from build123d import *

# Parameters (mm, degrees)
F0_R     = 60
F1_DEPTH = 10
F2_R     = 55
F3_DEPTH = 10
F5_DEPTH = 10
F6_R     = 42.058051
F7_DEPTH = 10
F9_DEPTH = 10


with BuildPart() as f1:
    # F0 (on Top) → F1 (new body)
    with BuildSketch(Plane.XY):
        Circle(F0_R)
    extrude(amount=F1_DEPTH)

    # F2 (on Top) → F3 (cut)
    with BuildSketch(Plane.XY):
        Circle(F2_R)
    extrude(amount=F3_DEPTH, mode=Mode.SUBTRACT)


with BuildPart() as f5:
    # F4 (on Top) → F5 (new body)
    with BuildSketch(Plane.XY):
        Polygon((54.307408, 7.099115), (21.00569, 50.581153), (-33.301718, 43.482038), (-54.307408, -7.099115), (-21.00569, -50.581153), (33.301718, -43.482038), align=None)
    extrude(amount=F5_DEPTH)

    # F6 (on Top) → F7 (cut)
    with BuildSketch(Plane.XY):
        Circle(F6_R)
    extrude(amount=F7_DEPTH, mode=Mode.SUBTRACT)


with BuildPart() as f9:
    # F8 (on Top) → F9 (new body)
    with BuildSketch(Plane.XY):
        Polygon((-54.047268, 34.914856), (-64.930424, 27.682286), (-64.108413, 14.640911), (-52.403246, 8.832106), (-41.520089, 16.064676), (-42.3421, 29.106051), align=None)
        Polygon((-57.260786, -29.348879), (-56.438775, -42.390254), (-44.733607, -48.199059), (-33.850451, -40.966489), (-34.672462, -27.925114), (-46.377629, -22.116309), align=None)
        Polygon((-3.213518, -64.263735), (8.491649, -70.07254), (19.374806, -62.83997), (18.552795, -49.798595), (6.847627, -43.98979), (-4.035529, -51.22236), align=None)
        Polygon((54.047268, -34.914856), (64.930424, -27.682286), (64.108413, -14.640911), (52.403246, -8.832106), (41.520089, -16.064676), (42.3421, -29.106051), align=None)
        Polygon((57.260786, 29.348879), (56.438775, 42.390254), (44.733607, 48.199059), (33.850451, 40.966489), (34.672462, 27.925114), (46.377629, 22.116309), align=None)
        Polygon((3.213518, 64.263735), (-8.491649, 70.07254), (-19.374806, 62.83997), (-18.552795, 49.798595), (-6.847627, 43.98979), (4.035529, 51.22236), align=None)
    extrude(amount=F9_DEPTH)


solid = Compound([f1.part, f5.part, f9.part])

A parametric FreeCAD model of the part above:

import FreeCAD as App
import Part
import Sketcher
Q = App.Units.Quantity

doc = App.newDocument("Part")
body = doc.addObject("PartDesign::Body", "Body")

# Sketch on XY plane
sketch1 = body.newObject("Sketcher::SketchObject", "Sketch")
sketch1.AttachmentSupport = (doc.getObject("XY_Plane"), [""])
sketch1.MapMode = "FlatFace"
sketch1.addGeometry(Part.Circle(App.Vector(0, 0, 0), App.Vector(0, 0, 1), 60), False)
sketch1.addConstraint([
    Sketcher.Constraint("Coincident", 0, 3, -1, 1),
    Sketcher.Constraint("Diameter", 0, Q("120 mm")),
])
pad1 = body.newObject("PartDesign::Pad", "Pad")
pad1.Profile = sketch1
pad1.Length = 10

# Sketch on XY plane
sketch2 = body.newObject("Sketcher::SketchObject", "Sketch001")
sketch2.AttachmentSupport = (doc.getObject("XY_Plane"), [""])
sketch2.MapMode = "FlatFace"
sketch2.addGeometry(Part.Circle(App.Vector(0, 0, 0), App.Vector(0, 0, 1), 55), False)
sketch2.addConstraint([
    Sketcher.Constraint("Coincident", 0, 3, -1, 1),
    Sketcher.Constraint("Diameter", 0, Q("110 mm")),
])
pocket1 = body.newObject("PartDesign::Pocket", "Pocket")
pocket1.Profile = sketch2
pocket1.Length = 10
pocket1.Reversed = True
body2 = doc.addObject("PartDesign::Body", "Body001")

# Sketch on XY plane
sketch3 = body2.newObject("Sketcher::SketchObject", "Sketch002")
sketch3.AttachmentSupport = (doc.getObject("XY_Plane001"), [""])
sketch3.MapMode = "FlatFace"
sketch3.addGeometry([
    Part.LineSegment(App.Vector(54, 7, 0), App.Vector(21, 51, 0)),  # 0
    Part.LineSegment(App.Vector(21, 51, 0), App.Vector(-33, 43, 0)),  # 1
    Part.LineSegment(App.Vector(-33, 43, 0), App.Vector(-54, -7, 0)),  # 2
    Part.LineSegment(App.Vector(-54, -7, 0), App.Vector(-21, -51, 0)),  # 3
    Part.LineSegment(App.Vector(-21, -51, 0), App.Vector(33, -43, 0)),  # 4
    Part.LineSegment(App.Vector(33, -43, 0), App.Vector(54, 7, 0)),  # 5
], False)
sketch3.addConstraint([
    Sketcher.Constraint("Coincident", 0, 2, 1, 1),
    Sketcher.Constraint("Coincident", 1, 2, 2, 1),
    Sketcher.Constraint("Coincident", 2, 2, 3, 1),
    Sketcher.Constraint("Coincident", 3, 2, 4, 1),
    Sketcher.Constraint("Coincident", 4, 2, 5, 1),
    Sketcher.Constraint("Coincident", 5, 2, 0, 1),
    Sketcher.Constraint("Symmetric", 0, 2, 3, 2, -1, 1),
    Sketcher.Constraint("Symmetric", 1, 2, 4, 2, -1, 1),
    Sketcher.Constraint("Symmetric", 2, 2, 5, 2, -1, 1),
    Sketcher.Constraint("Equal", 0, 1),
    Sketcher.Constraint("Equal", 1, 2),
    Sketcher.Constraint("DistanceX", -1, 1, 0, 2, Q("21.00569 mm")),
    Sketcher.Constraint("DistanceY", -1, 1, 1, 2, Q("43.482038 mm")),
    Sketcher.Constraint("DistanceX", 2, 2, -1, 1, Q("54.307408 mm")),
    Sketcher.Constraint("DistanceX", 1, 2, 0, 2, Q("54.307408 mm")),
])
pad2 = body2.newObject("PartDesign::Pad", "Pad001")
pad2.Profile = sketch3
pad2.Length = 10

# Sketch on XY plane
sketch4 = body2.newObject("Sketcher::SketchObject", "Sketch003")
sketch4.AttachmentSupport = (doc.getObject("XY_Plane001"), [""])
sketch4.MapMode = "FlatFace"
sketch4.addGeometry(Part.Circle(App.Vector(0, 0, 0), App.Vector(0, 0, 1), 42), False)
sketch4.addConstraint([
    Sketcher.Constraint("Coincident", 0, 3, -1, 1),
    Sketcher.Constraint("Diameter", 0, Q("84.116102 mm")),
])
pocket2 = body2.newObject("PartDesign::Pocket", "Pocket001")
pocket2.Profile = sketch4
pocket2.Length = 10
pocket2.Reversed = True
body3 = doc.addObject("PartDesign::Body", "Body002")
body3.AllowCompound = True

# Sketch on XY plane
sketch5 = body3.newObject("Sketcher::SketchObject", "Sketch004")
sketch5.AttachmentSupport = (doc.getObject("XY_Plane002"), [""])
sketch5.MapMode = "FlatFace"
sketch5.addGeometry([
    Part.LineSegment(App.Vector(-54, 35, 0), App.Vector(-65, 28, 0)),  # 0
    Part.LineSegment(App.Vector(-65, 28, 0), App.Vector(-64, 15, 0)),  # 1
    Part.LineSegment(App.Vector(-64, 15, 0), App.Vector(-52, 9, 0)),  # 2
    Part.LineSegment(App.Vector(-52, 9, 0), App.Vector(-42, 16, 0)),  # 3
    Part.LineSegment(App.Vector(-42, 16, 0), App.Vector(-42, 29, 0)),  # 4
    Part.LineSegment(App.Vector(-42, 29, 0), App.Vector(-54, 35, 0)),  # 5
    Part.LineSegment(App.Vector(-57, -29, 0), App.Vector(-56, -42, 0)),  # 6
    Part.LineSegment(App.Vector(-56, -42, 0), App.Vector(-45, -48, 0)),  # 7
    Part.LineSegment(App.Vector(-45, -48, 0), App.Vector(-34, -41, 0)),  # 8
    Part.LineSegment(App.Vector(-34, -41, 0), App.Vector(-35, -28, 0)),  # 9
    Part.LineSegment(App.Vector(-35, -28, 0), App.Vector(-46, -22, 0)),  # 10
    Part.LineSegment(App.Vector(-46, -22, 0), App.Vector(-57, -29, 0)),  # 11
    Part.LineSegment(App.Vector(-3, -64, 0), App.Vector(8, -70, 0)),  # 12
    Part.LineSegment(App.Vector(8, -70, 0), App.Vector(19, -63, 0)),  # 13
    Part.LineSegment(App.Vector(19, -63, 0), App.Vector(19, -50, 0)),  # 14
    Part.LineSegment(App.Vector(19, -50, 0), App.Vector(7, -44, 0)),  # 15
    Part.LineSegment(App.Vector(7, -44, 0), App.Vector(-4, -51, 0)),  # 16
    Part.LineSegment(App.Vector(-4, -51, 0), App.Vector(-3, -64, 0)),  # 17
    Part.LineSegment(App.Vector(54, -35, 0), App.Vector(65, -28, 0)),  # 18
    Part.LineSegment(App.Vector(65, -28, 0), App.Vector(64, -15, 0)),  # 19
    Part.LineSegment(App.Vector(64, -15, 0), App.Vector(52, -9, 0)),  # 20
    Part.LineSegment(App.Vector(52, -9, 0), App.Vector(42, -16, 0)),  # 21
    Part.LineSegment(App.Vector(42, -16, 0), App.Vector(42, -29, 0)),  # 22
    Part.LineSegment(App.Vector(42, -29, 0), App.Vector(54, -35, 0)),  # 23
    Part.LineSegment(App.Vector(57, 29, 0), App.Vector(56, 42, 0)),  # 24
    Part.LineSegment(App.Vector(56, 42, 0), App.Vector(45, 48, 0)),  # 25
    Part.LineSegment(App.Vector(45, 48, 0), App.Vector(34, 41, 0)),  # 26
    Part.LineSegment(App.Vector(34, 41, 0), App.Vector(35, 28, 0)),  # 27
    Part.LineSegment(App.Vector(35, 28, 0), App.Vector(46, 22, 0)),  # 28
    Part.LineSegment(App.Vector(46, 22, 0), App.Vector(57, 29, 0)),  # 29
    Part.LineSegment(App.Vector(3, 64, 0), App.Vector(-8, 70, 0)),  # 30
    Part.LineSegment(App.Vector(-8, 70, 0), App.Vector(-19, 63, 0)),  # 31
    Part.LineSegment(App.Vector(-19, 63, 0), App.Vector(-19, 50, 0)),  # 32
    Part.LineSegment(App.Vector(-19, 50, 0), App.Vector(-7, 44, 0)),  # 33
    Part.LineSegment(App.Vector(-7, 44, 0), App.Vector(4, 51, 0)),  # 34
    Part.LineSegment(App.Vector(4, 51, 0), App.Vector(3, 64, 0)),  # 35
], False)
sketch5.addConstraint([
    Sketcher.Constraint("Coincident", 0, 2, 1, 1),
    Sketcher.Constraint("Coincident", 1, 2, 2, 1),
    Sketcher.Constraint("Coincident", 2, 2, 3, 1),
    Sketcher.Constraint("Coincident", 3, 2, 4, 1),
    Sketcher.Constraint("Coincident", 4, 2, 5, 1),
    Sketcher.Constraint("Coincident", 5, 2, 0, 1),
    Sketcher.Constraint("Coincident", 6, 2, 7, 1),
    Sketcher.Constraint("Coincident", 7, 2, 8, 1),
    Sketcher.Constraint("Coincident", 8, 2, 9, 1),
    Sketcher.Constraint("Coincident", 9, 2, 10, 1),
    Sketcher.Constraint("Coincident", 10, 2, 11, 1),
    Sketcher.Constraint("Coincident", 11, 2, 6, 1),
    Sketcher.Constraint("Coincident", 12, 2, 13, 1),
    Sketcher.Constraint("Coincident", 13, 2, 14, 1),
    Sketcher.Constraint("Coincident", 14, 2, 15, 1),
    Sketcher.Constraint("Coincident", 15, 2, 16, 1),
    Sketcher.Constraint("Coincident", 16, 2, 17, 1),
    Sketcher.Constraint("Coincident", 17, 2, 12, 1),
    Sketcher.Constraint("Coincident", 18, 2, 19, 1),
    Sketcher.Constraint("Coincident", 19, 2, 20, 1),
    Sketcher.Constraint("Coincident", 20, 2, 21, 1),
    Sketcher.Constraint("Coincident", 21, 2, 22, 1),
    Sketcher.Constraint("Coincident", 22, 2, 23, 1),
    Sketcher.Constraint("Coincident", 23, 2, 18, 1),
    Sketcher.Constraint("Coincident", 24, 2, 25, 1),
    Sketcher.Constraint("Coincident", 25, 2, 26, 1),
    Sketcher.Constraint("Coincident", 26, 2, 27, 1),
    Sketcher.Constraint("Coincident", 27, 2, 28, 1),
    Sketcher.Constraint("Coincident", 28, 2, 29, 1),
    Sketcher.Constraint("Coincident", 29, 2, 24, 1),
    Sketcher.Constraint("Coincident", 30, 2, 31, 1),
    Sketcher.Constraint("Coincident", 31, 2, 32, 1),
    Sketcher.Constraint("Coincident", 32, 2, 33, 1),
    Sketcher.Constraint("Coincident", 33, 2, 34, 1),
    Sketcher.Constraint("Coincident", 34, 2, 35, 1),
    Sketcher.Constraint("Coincident", 35, 2, 30, 1),
    Sketcher.Constraint("Symmetric", 0, 2, 18, 2, -1, 1),
    Sketcher.Constraint("Symmetric", 1, 2, 19, 2, -1, 1),
    Sketcher.Constraint("Symmetric", 2, 2, 20, 2, -1, 1),
    Sketcher.Constraint("Symmetric", 3, 2, 21, 2, -1, 1),
    Sketcher.Constraint("Symmetric", 4, 2, 22, 2, -1, 1),
    Sketcher.Constraint("Symmetric", 5, 2, 23, 2, -1, 1),
    Sketcher.Constraint("Symmetric", 6, 2, 24, 2, -1, 1),
    Sketcher.Constraint("Symmetric", 7, 2, 25, 2, -1, 1),
    Sketcher.Constraint("Symmetric", 8, 2, 26, 2, -1, 1),
    Sketcher.Constraint("Symmetric", 9, 2, 27, 2, -1, 1),
    Sketcher.Constraint("Symmetric", 10, 2, 28, 2, -1, 1),
    Sketcher.Constraint("Symmetric", 11, 2, 29, 2, -1, 1),
    Sketcher.Constraint("Symmetric", 12, 2, 30, 2, -1, 1),
    Sketcher.Constraint("Symmetric", 13, 2, 31, 2, -1, 1),
    Sketcher.Constraint("Symmetric", 14, 2, 32, 2, -1, 1),
    Sketcher.Constraint("Symmetric", 15, 2, 33, 2, -1, 1),
    Sketcher.Constraint("Symmetric", 16, 2, 34, 2, -1, 1),
    Sketcher.Constraint("Symmetric", 17, 2, 35, 2, -1, 1),
    Sketcher.Constraint("Parallel", 0, 3),
    Sketcher.Constraint("Parallel", 1, 4),
    Sketcher.Constraint("Parallel", 2, 5),
    Sketcher.Constraint("Parallel", 4, 6),
    Sketcher.Constraint("Parallel", 5, 7),
    Sketcher.Constraint("Parallel", 3, 8),
    Sketcher.Constraint("Parallel", 6, 9),
    Sketcher.Constraint("Parallel", 7, 10),
    Sketcher.Constraint("Parallel", 8, 11),
    Sketcher.Constraint("Parallel", 10, 12),
    Sketcher.Constraint("Parallel", 11, 13),
    Sketcher.Constraint("Parallel", 9, 14),
    Sketcher.Constraint("Parallel", 12, 15),
    Sketcher.Constraint("Parallel", 13, 16),
    Sketcher.Constraint("Parallel", 14, 17),
    Sketcher.Constraint("Equal", 0, 1),
    Sketcher.Constraint("Equal", 1, 2),
    Sketcher.Constraint("Equal", 2, 3),
    Sketcher.Constraint("Equal", 5, 6),
    Sketcher.Constraint("Equal", 6, 7),
    Sketcher.Constraint("Equal", 7, 8),
    Sketcher.Constraint("Equal", 8, 9),
    Sketcher.Constraint("Equal", 11, 12),
    Sketcher.Constraint("Equal", 12, 13),
    Sketcher.Constraint("Equal", 13, 14),
    Sketcher.Constraint("Equal", 14, 15),
    Sketcher.Constraint("DistanceX", 4, 2, -1, 1, Q("42.3421 mm")),
    Sketcher.Constraint("DistanceY", 8, 2, 1, 2, Q("55.6074 mm")),
    Sketcher.Constraint("DistanceX", 8, 2, 12, 2, Q("42.3421 mm")),
    Sketcher.Constraint("DistanceX", 7, 2, 14, 2, Q("63.286402 mm")),
    Sketcher.Constraint("DistanceY", 15, 2, 8, 2, Q("3.023301 mm")),
    Sketcher.Constraint("DistanceY", -1, 1, 1, 2, Q("14.640911 mm")),
    Sketcher.Constraint("DistanceX", 3, 2, -1, 1, Q("41.520089 mm")),
    Sketcher.Constraint("DistanceY", -1, 1, 4, 2, Q("29.106051 mm")),
    Sketcher.Constraint("DistanceX", 5, 2, -1, 1, Q("54.047268 mm")),
    Sketcher.Constraint("DistanceX", 8, 2, -1, 1, Q("33.850451 mm")),
])
pad3 = body3.newObject("PartDesign::Pad", "Pad002")
pad3.Profile = sketch5
pad3.Length = 10

doc.recompute()
